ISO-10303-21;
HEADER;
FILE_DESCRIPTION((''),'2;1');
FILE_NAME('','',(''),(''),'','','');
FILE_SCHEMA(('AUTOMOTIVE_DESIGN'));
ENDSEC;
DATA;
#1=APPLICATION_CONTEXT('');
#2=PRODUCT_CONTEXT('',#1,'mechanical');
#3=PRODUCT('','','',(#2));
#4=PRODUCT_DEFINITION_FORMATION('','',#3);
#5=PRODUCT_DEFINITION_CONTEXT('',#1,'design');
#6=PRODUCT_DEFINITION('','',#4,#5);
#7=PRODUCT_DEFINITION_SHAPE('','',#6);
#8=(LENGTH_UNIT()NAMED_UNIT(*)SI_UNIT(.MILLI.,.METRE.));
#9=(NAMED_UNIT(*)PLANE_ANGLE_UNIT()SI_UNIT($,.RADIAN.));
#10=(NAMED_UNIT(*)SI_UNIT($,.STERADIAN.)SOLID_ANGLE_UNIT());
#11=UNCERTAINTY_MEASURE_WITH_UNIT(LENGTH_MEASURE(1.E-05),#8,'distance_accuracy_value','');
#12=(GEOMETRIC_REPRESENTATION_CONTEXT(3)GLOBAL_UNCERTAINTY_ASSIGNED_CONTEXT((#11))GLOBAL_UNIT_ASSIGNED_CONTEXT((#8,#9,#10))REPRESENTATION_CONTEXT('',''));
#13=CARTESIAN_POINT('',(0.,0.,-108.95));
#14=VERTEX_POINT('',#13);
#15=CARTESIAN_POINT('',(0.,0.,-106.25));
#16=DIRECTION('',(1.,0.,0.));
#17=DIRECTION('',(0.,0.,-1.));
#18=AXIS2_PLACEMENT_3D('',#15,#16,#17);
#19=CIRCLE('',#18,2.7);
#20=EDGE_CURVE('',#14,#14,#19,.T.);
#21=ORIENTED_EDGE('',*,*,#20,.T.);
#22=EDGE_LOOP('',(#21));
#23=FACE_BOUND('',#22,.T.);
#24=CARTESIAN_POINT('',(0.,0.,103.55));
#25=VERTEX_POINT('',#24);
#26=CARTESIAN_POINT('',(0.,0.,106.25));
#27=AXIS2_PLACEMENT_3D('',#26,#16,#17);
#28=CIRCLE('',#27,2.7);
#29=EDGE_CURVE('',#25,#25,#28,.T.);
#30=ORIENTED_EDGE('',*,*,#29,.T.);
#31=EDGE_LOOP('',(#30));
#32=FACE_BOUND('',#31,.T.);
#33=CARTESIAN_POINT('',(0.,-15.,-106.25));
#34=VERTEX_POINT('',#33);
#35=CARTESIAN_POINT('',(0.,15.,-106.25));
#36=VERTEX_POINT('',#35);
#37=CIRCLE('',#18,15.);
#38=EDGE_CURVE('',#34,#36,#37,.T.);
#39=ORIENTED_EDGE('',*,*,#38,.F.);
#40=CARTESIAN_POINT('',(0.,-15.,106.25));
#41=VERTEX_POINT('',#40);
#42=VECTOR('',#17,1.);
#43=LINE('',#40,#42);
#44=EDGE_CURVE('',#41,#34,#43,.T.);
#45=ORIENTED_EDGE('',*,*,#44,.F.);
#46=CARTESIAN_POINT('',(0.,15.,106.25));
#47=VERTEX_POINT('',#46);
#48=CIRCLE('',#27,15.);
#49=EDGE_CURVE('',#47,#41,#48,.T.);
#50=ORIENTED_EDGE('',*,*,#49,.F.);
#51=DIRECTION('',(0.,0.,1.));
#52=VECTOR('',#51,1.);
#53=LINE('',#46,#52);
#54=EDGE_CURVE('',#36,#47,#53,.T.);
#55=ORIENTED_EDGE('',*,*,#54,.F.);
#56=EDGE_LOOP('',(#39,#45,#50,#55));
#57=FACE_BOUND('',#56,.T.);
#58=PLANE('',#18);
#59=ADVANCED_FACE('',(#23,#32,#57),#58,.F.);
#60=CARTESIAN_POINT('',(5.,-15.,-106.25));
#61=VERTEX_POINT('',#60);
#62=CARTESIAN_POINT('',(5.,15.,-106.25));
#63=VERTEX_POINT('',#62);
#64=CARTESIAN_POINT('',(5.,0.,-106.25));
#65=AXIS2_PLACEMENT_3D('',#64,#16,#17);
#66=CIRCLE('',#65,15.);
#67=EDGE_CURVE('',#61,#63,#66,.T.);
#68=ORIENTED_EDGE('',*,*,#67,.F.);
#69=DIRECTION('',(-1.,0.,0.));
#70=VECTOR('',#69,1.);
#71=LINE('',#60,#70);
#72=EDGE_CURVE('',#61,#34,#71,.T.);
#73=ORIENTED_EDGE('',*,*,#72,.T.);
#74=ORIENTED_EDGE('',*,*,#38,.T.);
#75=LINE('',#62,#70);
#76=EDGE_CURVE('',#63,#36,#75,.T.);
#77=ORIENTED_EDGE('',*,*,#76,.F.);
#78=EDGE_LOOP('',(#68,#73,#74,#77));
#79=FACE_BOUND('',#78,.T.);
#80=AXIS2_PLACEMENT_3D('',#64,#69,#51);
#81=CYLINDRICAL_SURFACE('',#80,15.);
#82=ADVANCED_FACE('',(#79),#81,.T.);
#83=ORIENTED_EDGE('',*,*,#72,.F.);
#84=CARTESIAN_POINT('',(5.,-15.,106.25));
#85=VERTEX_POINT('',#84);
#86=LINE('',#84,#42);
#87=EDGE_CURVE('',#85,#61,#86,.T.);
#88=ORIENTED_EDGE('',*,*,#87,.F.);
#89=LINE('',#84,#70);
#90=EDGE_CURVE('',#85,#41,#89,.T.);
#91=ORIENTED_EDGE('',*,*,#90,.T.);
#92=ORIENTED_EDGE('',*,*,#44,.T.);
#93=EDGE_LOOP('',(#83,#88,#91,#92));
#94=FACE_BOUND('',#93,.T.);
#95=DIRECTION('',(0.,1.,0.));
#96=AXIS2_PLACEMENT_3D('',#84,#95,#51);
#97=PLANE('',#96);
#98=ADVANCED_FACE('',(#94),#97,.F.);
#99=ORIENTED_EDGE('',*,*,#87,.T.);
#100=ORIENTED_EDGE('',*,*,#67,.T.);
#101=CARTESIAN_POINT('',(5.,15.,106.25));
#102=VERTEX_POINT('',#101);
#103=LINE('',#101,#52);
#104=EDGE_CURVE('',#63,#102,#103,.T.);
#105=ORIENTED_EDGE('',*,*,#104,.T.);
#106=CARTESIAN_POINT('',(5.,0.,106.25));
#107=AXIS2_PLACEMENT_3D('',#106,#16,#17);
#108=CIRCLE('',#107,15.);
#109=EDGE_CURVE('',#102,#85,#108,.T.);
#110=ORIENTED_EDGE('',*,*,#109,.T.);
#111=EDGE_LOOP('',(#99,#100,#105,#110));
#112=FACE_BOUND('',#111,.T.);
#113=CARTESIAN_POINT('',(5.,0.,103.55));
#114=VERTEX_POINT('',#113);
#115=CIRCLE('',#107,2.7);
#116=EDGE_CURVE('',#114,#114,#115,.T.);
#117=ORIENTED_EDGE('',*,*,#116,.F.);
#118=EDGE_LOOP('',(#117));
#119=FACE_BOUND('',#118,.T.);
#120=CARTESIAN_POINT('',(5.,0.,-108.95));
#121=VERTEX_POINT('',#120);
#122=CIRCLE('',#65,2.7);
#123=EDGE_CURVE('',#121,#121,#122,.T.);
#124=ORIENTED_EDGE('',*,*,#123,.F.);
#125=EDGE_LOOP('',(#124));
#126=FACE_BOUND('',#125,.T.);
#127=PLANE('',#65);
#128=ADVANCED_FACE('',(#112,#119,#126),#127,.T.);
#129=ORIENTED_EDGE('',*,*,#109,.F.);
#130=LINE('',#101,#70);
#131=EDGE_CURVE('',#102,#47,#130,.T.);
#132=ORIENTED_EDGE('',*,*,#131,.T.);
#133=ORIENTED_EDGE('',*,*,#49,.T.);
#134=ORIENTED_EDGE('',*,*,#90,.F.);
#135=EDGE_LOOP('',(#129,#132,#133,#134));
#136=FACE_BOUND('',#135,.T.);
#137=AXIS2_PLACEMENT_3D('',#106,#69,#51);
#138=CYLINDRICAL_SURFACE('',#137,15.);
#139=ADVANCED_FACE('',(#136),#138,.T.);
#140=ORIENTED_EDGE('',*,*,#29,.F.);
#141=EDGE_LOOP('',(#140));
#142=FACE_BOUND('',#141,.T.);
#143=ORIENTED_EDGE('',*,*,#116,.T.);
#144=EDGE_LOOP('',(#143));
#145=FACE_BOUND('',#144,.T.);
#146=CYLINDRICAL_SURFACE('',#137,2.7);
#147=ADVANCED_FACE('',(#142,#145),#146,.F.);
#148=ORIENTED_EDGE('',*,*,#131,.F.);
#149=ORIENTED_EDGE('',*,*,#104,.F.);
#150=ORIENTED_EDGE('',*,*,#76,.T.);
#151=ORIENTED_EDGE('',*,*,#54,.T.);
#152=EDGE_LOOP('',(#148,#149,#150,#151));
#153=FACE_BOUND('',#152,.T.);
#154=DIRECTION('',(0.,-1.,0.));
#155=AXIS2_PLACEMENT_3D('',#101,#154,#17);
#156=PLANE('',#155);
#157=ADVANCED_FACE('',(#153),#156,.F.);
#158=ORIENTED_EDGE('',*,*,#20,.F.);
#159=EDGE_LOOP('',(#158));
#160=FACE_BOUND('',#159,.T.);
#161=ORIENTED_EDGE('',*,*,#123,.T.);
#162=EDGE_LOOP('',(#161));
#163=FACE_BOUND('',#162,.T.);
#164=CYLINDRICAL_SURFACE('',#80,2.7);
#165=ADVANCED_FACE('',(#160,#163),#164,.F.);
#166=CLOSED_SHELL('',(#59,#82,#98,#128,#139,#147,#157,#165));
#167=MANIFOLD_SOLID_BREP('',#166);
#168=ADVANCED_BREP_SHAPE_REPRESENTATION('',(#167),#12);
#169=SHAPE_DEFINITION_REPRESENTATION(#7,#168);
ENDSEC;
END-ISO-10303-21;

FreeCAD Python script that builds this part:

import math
import FreeCAD as App
import Part
import Sketcher
from FreeCAD import Vector

doc = App.newDocument("Part")
body = doc.addObject("PartDesign::Body", "Body")

# Sketch on YZ plane
sketch1 = doc.addObject("Sketcher::SketchObject", "Sketch")
body.addObject(sketch1)
sketch1.AttachmentSupport = (doc.YZ_Plane, [""])
sketch1.MapMode = "FlatFace"
sketch1.addGeometry([
    Part.LineSegment(Vector(-15, 106.25, 0), Vector(-15, -106.25, 0)),  # 0
    Part.ArcOfCircle(Part.Circle(Vector(0, -106.25, 0), Vector(0, 0, 1), 15), math.radians(180), math.radians(360)),  # 1
    Part.LineSegment(Vector(15, -106.25, 0), Vector(15, 106.25, 0)),  # 2
    Part.ArcOfCircle(Part.Circle(Vector(0, 106.25, 0), Vector(0, 0, 1), 15), math.radians(0), math.radians(180)),  # 3
    Part.Circle(Vector(0, 106.25, 0), Vector(0, 0, 1), 2.7),  # 4
    Part.Circle(Vector(0, -106.25, 0), Vector(0, 0, 1), 2.7),  # 5
], False)
sketch1.addConstraint([
    Sketcher.Constraint("Tangent", 0, 2, 1, 1),
    Sketcher.Constraint("Tangent", 1, 2, 2, 1),
    Sketcher.Constraint("Tangent", 2, 2, 3, 1),
    Sketcher.Constraint("Tangent", 3, 2, 0, 1),
    Sketcher.Constraint("Vertical", 0),
    Sketcher.Constraint("Vertical", 2),
    Sketcher.Constraint("Coincident", 4, 3, 3, 3),
    Sketcher.Constraint("Coincident", 5, 3, 1, 3),
    Sketcher.Constraint("Equal", 4, 5),
    Sketcher.Constraint("Symmetric", 1, 3, 3, 3, -1, 1),
    Sketcher.Constraint("Radius", 1, 15.0),
    Sketcher.Constraint("Diameter", 4, 5.4),
    Sketcher.Constraint("DistanceY", 0, 2, 0, 1, 212.5),
])
pad1 = doc.addObject("PartDesign::Pad", "Pad")
body.addObject(pad1)
pad1.Profile = sketch1
pad1.Length = 5

doc.recompute()
